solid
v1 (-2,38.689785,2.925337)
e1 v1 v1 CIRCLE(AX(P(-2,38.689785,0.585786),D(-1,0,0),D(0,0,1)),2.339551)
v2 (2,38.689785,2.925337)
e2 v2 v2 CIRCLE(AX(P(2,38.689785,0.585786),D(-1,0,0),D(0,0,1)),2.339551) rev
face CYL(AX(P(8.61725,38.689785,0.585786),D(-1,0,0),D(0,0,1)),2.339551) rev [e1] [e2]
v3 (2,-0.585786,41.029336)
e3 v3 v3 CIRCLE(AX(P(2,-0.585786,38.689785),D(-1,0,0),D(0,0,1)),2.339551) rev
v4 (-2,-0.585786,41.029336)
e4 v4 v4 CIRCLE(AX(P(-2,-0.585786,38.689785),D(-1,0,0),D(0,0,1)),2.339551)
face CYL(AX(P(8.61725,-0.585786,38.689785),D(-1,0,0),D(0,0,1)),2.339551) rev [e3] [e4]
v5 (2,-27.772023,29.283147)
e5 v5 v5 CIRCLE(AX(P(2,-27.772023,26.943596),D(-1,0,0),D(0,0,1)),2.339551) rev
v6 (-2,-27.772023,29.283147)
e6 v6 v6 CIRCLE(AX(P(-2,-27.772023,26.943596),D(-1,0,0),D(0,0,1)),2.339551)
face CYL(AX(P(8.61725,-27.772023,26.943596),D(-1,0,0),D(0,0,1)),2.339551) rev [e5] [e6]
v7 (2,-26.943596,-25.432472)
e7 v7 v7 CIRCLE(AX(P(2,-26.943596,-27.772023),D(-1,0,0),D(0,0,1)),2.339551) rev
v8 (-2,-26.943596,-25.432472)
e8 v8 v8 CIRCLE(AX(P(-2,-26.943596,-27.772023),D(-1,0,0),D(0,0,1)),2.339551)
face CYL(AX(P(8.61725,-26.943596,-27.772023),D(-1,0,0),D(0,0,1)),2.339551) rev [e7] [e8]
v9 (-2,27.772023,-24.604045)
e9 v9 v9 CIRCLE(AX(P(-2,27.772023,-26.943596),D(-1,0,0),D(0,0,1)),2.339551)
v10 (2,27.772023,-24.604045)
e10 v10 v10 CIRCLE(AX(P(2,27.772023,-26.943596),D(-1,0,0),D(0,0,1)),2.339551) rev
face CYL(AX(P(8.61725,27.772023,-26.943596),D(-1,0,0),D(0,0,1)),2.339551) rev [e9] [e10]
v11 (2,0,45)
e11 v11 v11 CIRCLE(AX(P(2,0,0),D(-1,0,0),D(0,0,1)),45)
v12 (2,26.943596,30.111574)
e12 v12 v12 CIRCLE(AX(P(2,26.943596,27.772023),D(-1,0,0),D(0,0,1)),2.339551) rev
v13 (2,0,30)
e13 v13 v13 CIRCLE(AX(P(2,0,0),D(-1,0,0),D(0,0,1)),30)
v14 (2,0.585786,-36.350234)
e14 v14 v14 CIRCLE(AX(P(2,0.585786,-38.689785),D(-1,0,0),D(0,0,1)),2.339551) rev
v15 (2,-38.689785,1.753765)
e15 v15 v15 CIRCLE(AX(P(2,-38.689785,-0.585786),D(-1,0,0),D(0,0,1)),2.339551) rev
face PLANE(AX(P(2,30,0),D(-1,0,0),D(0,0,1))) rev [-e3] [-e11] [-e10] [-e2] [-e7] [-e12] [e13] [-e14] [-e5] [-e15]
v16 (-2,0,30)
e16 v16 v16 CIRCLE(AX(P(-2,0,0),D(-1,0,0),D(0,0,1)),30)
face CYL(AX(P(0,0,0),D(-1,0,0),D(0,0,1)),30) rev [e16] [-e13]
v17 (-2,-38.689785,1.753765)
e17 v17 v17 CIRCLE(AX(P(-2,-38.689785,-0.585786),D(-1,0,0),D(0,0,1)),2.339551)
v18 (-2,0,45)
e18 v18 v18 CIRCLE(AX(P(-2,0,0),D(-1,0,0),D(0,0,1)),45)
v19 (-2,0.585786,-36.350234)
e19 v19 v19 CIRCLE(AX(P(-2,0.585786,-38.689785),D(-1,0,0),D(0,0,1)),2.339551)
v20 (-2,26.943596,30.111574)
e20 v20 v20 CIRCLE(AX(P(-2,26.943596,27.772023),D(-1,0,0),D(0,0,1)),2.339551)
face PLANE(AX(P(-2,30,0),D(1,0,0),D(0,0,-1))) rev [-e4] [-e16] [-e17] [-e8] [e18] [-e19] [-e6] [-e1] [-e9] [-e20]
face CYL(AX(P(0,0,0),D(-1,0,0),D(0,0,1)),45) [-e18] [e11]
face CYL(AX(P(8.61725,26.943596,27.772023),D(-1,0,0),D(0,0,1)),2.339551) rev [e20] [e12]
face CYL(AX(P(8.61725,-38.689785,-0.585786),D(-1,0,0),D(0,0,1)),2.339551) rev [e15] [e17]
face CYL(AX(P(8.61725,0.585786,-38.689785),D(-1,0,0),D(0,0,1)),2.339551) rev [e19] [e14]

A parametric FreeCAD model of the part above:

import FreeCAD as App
import Part
import Sketcher
from FreeCAD import Vector
Q = App.Units.Quantity


def add_polygon(sketch, points):
    """Adds a closed chain of lines whose ends are joined by coincident constraints."""
    first, n = sketch.GeometryCount, len(points)
    for a, b in zip(points, points[1:] + points[:1]):
        sketch.addGeometry(Part.LineSegment(App.Vector(*a, 0), App.Vector(*b, 0)), False)
    for i in range(n):
        sketch.addConstraint(Sketcher.Constraint("Coincident", first + i, 2, first + (i + 1) % n, 1))

doc = App.newDocument("Part")
params = doc.addObject("Spreadsheet::Sheet", "Params")
for row, (alias, value) in enumerate([
    ("sketch1_width", "4 mm"),
    ("sketch1_height", "15 mm"),
    ("revolution_angle", "360 deg"),
    ("pocket1_length", "4 mm"),
], start=1):
    params.set(f"A{row}", alias)
    params.set(f"B{row}", "=" + value)
    params.setAlias(f"B{row}", alias)

body = doc.addObject("PartDesign::Body", "Body")

# Sketch on XY plane
sketch1 = body.newObject("Sketcher::SketchObject", "Sketch")
sketch1.AttachmentSupport = (doc.getObject("XY_Plane"), [""])
sketch1.MapMode = "FlatFace"
add_polygon(sketch1, [(-2, 45), (-2, 30), (2, 30), (2, 45)])  # lines 0-3
sketch1.addConstraint([
    Sketcher.Constraint("Vertical", 0),
    Sketcher.Constraint("Horizontal", 1),
    Sketcher.Constraint("Vertical", 2),
    Sketcher.Constraint("Horizontal", 3),
    Sketcher.Constraint("DistanceX", 1, 1, 1, 2, Q("4 mm")),
    Sketcher.Constraint("DistanceY", 0, 2, 0, 1, Q("15 mm")),
    Sketcher.Constraint("DistanceX", 0, 2, -1, 1, Q("2 mm")),
    Sketcher.Constraint("DistanceY", -1, 1, 0, 2, Q("30 mm")),
])
sketch1.setExpression("Constraints[8]", "Params.sketch1_width")
sketch1.setExpression("Constraints[9]", "Params.sketch1_height")
revolution = body.newObject("PartDesign::Revolution", "Revolution")
revolution.Profile = sketch1
revolution.ReferenceAxis = (sketch1, ["H_Axis"])
revolution.setExpression("Angle", "Params.revolution_angle")

# Sketch on YZ plane
sketch2 = body.newObject("Sketcher::SketchObject", "Sketch001")
sketch2.AttachmentSupport = (doc.getObject("YZ_Plane"), [""])
sketch2.MapMode = "FlatFace"
sketch2.AttachmentOffset = App.Placement(Vector(0, 0, -2), App.Rotation())
sketch2.addGeometry([
    Part.Circle(Vector(38.689785, 0.585786, 0), Vector(0, 0, 1), 2.339551),  # 0
    Part.Circle(Vector(26.943596, 27.772023, 0), Vector(0, 0, 1), 2.339551),  # 1
    Part.Circle(Vector(-0.585786, 38.689785, 0), Vector(0, 0, 1), 2.339551),  # 2
    Part.Circle(Vector(-27.772023, 26.943596, 0), Vector(0, 0, 1), 2.339551),  # 3
    Part.Circle(Vector(-38.689785, -0.585786, 0), Vector(0, 0, 1), 2.339551),  # 4
    Part.Circle(Vector(-26.943596, -27.772023, 0), Vector(0, 0, 1), 2.339551),  # 5
    Part.Circle(Vector(0.585786, -38.689785, 0), Vector(0, 0, 1), 2.339551),  # 6
    Part.Circle(Vector(27.772023, -26.943596, 0), Vector(0, 0, 1), 2.339551),  # 7
], False)
sketch2.addConstraint([
    Sketcher.Constraint("Equal", 0, 1),
    Sketcher.Constraint("Equal", 1, 2),
    Sketcher.Constraint("Equal", 2, 3),
    Sketcher.Constraint("Equal", 3, 4),
    Sketcher.Constraint("Equal", 4, 5),
    Sketcher.Constraint("Equal", 5, 6),
    Sketcher.Constraint("Equal", 6, 7),
    Sketcher.Constraint("Symmetric", 0, 3, 4, 3, -1, 1),
    Sketcher.Constraint("Symmetric", 1, 3, 5, 3, -1, 1),
    Sketcher.Constraint("Symmetric", 2, 3, 6, 3, -1, 1),
    Sketcher.Constraint("Symmetric", 3, 3, 7, 3, -1, 1),
    Sketcher.Constraint("Diameter", 0, Q("4.679102 mm")),
    Sketcher.Constraint("DistanceY", 0, 3, 2, 3, Q("38.103999 mm")),
    Sketcher.Constraint("DistanceX", 4, 3, 2, 3, Q("38.103999 mm")),
    Sketcher.Constraint("DistanceX", 1, 3, 0, 3, Q("11.746189 mm")),
    Sketcher.Constraint("DistanceX", 2, 3, 0, 3, Q("39.275572 mm")),
    Sketcher.Constraint("DistanceY", 3, 3, 2, 3, Q("11.746189 mm")),
    Sketcher.Constraint("DistanceX", 3, 3, 1, 3, Q("54.715619 mm")),
    Sketcher.Constraint("DistanceY", 4, 3, 2, 3, Q("39.275572 mm")),
    Sketcher.Constraint("DistanceY", 4, 3, 1, 3, Q("28.35781 mm")),
])
pocket1 = body.newObject("PartDesign::Pocket", "Pocket")
pocket1.Profile = sketch2
pocket1.setExpression("Length", "Params.pocket1_length")
pocket1.Reversed = True

doc.recompute()
